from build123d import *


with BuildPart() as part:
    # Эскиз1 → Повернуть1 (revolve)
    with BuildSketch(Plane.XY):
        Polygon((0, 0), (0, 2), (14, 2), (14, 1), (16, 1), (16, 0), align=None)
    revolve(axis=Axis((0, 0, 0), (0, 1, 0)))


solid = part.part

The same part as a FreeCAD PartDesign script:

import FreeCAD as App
import Part
import Sketcher
from FreeCAD import Vector
Q = App.Units.Quantity


def add_polygon(sketch, points):
    """Adds a closed chain of lines whose ends are joined by coincident constraints."""
    first, n = sketch.GeometryCount, len(points)
    for a, b in zip(points, points[1:] + points[:1]):
        sketch.addGeometry(Part.LineSegment(App.Vector(*a, 0), App.Vector(*b, 0)), False)
    for i in range(n):
        sketch.addConstraint(Sketcher.Constraint("Coincident", first + i, 2, first + (i + 1) % n, 1))

doc = App.newDocument("Part")
body = doc.addObject("PartDesign::Body", "Body")

sketch1 = body.newObject("Sketcher::SketchObject", "Sketch")
sketch1.AttachmentSupport = (doc.getObject("XY_Plane"), [""])
sketch1.MapMode = "FlatFace"
add_polygon(sketch1, [(0, 2), (0, 0), (16, 0), (16, 1), (14, 1), (14, 2)])
sketch1.addConstraint([
    Sketcher.Constraint("Vertical", 0),
    Sketcher.Constraint("Horizontal", 1),
    Sketcher.Constraint("Vertical", 2),
    Sketcher.Constraint("Horizontal", 3),
    Sketcher.Constraint("Vertical", 4),
    Sketcher.Constraint("Horizontal", 5),
    Sketcher.Constraint("Coincident", 0, 2, -1, 1),
    Sketcher.Constraint("Equal", 3, 0),
    Sketcher.Constraint("Equal", 2, 4),
    Sketcher.Constraint("DistanceX", 1, 1, 1, 2, Q("16 mm")),
    Sketcher.Constraint("DistanceX", 3, 2, 3, 1, Q("2 mm")),
])
revolution = body.newObject("PartDesign::Revolution", "Revolution")
revolution.Profile = sketch1
revolution.ReferenceAxis = (sketch1, ["V_Axis"])
revolution.Angle = 360

doc.recompute()
